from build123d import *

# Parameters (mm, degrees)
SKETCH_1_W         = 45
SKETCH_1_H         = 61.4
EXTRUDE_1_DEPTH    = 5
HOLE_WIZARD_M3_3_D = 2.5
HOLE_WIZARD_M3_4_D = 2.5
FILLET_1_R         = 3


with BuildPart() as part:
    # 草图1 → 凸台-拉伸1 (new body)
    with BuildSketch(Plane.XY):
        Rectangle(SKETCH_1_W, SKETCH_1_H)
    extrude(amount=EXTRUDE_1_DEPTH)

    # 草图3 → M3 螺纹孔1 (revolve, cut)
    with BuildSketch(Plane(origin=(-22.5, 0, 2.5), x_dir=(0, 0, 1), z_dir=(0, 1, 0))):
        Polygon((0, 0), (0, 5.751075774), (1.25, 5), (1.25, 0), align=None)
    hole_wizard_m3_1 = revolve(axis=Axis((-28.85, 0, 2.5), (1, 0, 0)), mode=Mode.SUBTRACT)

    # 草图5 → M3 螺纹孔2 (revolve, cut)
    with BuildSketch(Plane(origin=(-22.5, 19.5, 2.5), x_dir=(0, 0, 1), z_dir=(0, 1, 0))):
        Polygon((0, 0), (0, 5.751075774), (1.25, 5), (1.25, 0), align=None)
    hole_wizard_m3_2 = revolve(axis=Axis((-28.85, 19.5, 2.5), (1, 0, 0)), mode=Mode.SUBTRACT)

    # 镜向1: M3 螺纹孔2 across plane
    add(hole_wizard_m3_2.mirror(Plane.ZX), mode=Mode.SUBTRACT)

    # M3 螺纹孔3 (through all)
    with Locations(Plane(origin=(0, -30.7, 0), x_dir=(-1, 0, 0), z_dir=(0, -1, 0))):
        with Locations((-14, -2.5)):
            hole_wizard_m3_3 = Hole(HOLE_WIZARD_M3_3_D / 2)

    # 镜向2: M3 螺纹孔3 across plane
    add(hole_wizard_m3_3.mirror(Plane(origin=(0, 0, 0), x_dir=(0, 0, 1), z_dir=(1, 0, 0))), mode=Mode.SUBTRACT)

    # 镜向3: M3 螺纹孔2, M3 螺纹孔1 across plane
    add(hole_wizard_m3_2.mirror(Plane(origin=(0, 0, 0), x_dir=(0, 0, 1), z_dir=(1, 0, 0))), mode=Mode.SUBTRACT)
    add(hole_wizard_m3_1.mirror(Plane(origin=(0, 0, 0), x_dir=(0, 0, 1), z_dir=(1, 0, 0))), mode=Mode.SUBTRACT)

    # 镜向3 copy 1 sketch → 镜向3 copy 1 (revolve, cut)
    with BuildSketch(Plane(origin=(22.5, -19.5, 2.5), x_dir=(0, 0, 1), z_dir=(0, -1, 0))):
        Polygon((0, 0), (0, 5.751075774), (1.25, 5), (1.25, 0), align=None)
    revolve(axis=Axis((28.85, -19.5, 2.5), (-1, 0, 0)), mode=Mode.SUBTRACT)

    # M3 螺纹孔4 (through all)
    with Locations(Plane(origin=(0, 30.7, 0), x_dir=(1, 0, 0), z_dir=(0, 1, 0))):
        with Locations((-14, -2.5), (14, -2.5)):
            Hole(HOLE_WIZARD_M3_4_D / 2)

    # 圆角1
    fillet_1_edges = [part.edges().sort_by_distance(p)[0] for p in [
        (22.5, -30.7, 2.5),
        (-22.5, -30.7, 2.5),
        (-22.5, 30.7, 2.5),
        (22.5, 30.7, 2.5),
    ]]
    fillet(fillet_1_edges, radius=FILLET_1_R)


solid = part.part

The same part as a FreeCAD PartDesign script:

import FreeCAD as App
import Part
import Sketcher

V = App.Vector
Q = App.Units.Quantity


def edges_at(feature, points):
    """Names of the edges that pass closest to the given points."""
    edges = feature.Shape.Edges
    near = lambda p: min(range(len(edges)), key=lambda i: edges[i].distToShape(Part.Vertex(*p))[0])
    return sorted({f"Edge{near(p) + 1}" for p in points})


def add_polygon(sketch, points):
    """Adds a closed chain of lines whose ends are joined by coincident constraints."""
    first, n = sketch.GeometryCount, len(points)
    for a, b in zip(points, points[1:] + points[:1]):
        sketch.addGeometry(Part.LineSegment(App.Vector(*a, 0), App.Vector(*b, 0)), False)
    for i in range(n):
        sketch.addConstraint(Sketcher.Constraint("Coincident", first + i, 2, first + (i + 1) % n, 1))

doc = App.newDocument("Part")
params = doc.addObject("Spreadsheet::Sheet", "Params")
for row, (alias, value) in enumerate([
    ("sketch1_width", "45 mm"),
    ("sketch1_height", "61.4 mm"),
    ("pad1_length", "5 mm"),
    ("sketch2_width", "5 mm"),
    ("sketch2_height", "1.25 mm"),
    ("groove_angle", "360 deg"),
    ("sketch3_width", "5 mm"),
    ("sketch3_height", "1.25 mm"),
    ("groove2_angle", "360 deg"),
    ("sketch4_diameter", "2.5 mm"),
    ("hole_diameter", "2.5 mm"),
    ("sketch5_width", "5 mm"),
    ("sketch5_height", "1.25 mm"),
    ("groove3_angle", "360 deg"),
    ("sketch6_diameter", "2.5 mm"),
    ("hole2_diameter", "2.5 mm"),
    ("fillet_radius", "3 mm"),
], start=1):
    params.set(f"A{row}", alias)
    params.set(f"B{row}", "=" + value)
    params.setAlias(f"B{row}", alias)

body = doc.addObject("PartDesign::Body", "Body")

# Sketch on XY plane
sketch1 = body.newObject("Sketcher::SketchObject", "Sketch")
sketch1.AttachmentSupport = (doc.getObject("XY_Plane"), [""])
sketch1.MapMode = "FlatFace"
add_polygon(sketch1, [(-22, 31), (-22, -31), (22, -31), (22, 31)])  # lines 0-3
sketch1.addConstraint(Sketcher.Constraint("Vertical", 0))
sketch1.addConstraint(Sketcher.Constraint("Horizontal", 1))
sketch1.addConstraint(Sketcher.Constraint("Vertical", 2))
sketch1.addConstraint(Sketcher.Constraint("Horizontal", 3))
sketch1.addConstraint(Sketcher.Constraint("Symmetric", 0, 2, 2, 2, -1, 1))
sketch1.addConstraint(Sketcher.Constraint("DistanceX", 1, 1, 1, 2, Q("45 mm")))
sketch1.addConstraint(Sketcher.Constraint("DistanceY", 0, 2, 0, 1, Q("61.4 mm")))
sketch1.setExpression("Constraints[9]", "Params.sketch1_width")
sketch1.setExpression("Constraints[10]", "Params.sketch1_height")
pad1 = body.newObject("PartDesign::Pad", "Pad")
pad1.Profile = sketch1
pad1.setExpression("Length", "Params.pad1_length")

# Sketch on XZ plane
sketch2 = body.newObject("Sketcher::SketchObject", "Sketch001")
sketch2.AttachmentSupport = (doc.getObject("XZ_Plane"), [""])
sketch2.MapMode = "FlatFace"
add_polygon(sketch2, [(-16.7, 2.5), (-22.5, 2.5), (-22.5, 3.8), (-17.5, 3.8)])  # lines 0-3
sketch2.addGeometry(Part.LineSegment(V(-22.5, 2.5, 0), V(-16.7, 2.5, 0)), True)  # axis
sketch2.addConstraint(Sketcher.Constraint("Horizontal", 0))
sketch2.addConstraint(Sketcher.Constraint("Vertical", 1))
sketch2.addConstraint(Sketcher.Constraint("Horizontal", 2))
sketch2.addConstraint(Sketcher.Constraint("Horizontal", 4))
sketch2.addConstraint(Sketcher.Constraint("Coincident", 4, 1, 0, 2))
sketch2.addConstraint(Sketcher.Constraint("Equal", 0, 4))
sketch2.addConstraint(Sketcher.Constraint("DistanceX", 2, 1, 2, 2, Q("5 mm")))
sketch2.addConstraint(Sketcher.Constraint("Angle", 3, Q("-59 deg")))
sketch2.addConstraint(Sketcher.Constraint("DistanceY", 1, 1, 1, 2, Q("1.25 mm")))
sketch2.addConstraint(Sketcher.Constraint("DistanceX", 0, 2, -1, 1, Q("22.5 mm")))
sketch2.addConstraint(Sketcher.Constraint("DistanceY", -1, 1, 0, 2, Q("2.5 mm")))
sketch2.setExpression("Constraints[10]", "Params.sketch2_width")
sketch2.setExpression("Constraints[12]", "Params.sketch2_height")
groove = body.newObject("PartDesign::Groove", "Groove")
groove.Profile = sketch2
groove.ReferenceAxis = (sketch2, ["Axis0"])
groove.setExpression("Angle", "Params.groove_angle")

# Sketch on XZ plane
sketch3 = body.newObject("Sketcher::SketchObject", "Sketch002")
sketch3.AttachmentSupport = (doc.getObject("XZ_Plane"), [""])
sketch3.MapMode = "FlatFace"
sketch3.AttachmentOffset = App.Placement(V(0, 0, -19.5), App.Rotation())
add_polygon(sketch3, [(-16.7, 2.5), (-22.5, 2.5), (-22.5, 3.8), (-17.5, 3.8)])  # lines 0-3
sketch3.addGeometry(Part.LineSegment(V(-22.5, 2.5, 0), V(-16.7, 2.5, 0)), True)  # axis
sketch3.addConstraint(Sketcher.Constraint("Horizontal", 0))
sketch3.addConstraint(Sketcher.Constraint("Vertical", 1))
sketch3.addConstraint(Sketcher.Constraint("Horizontal", 2))
sketch3.addConstraint(Sketcher.Constraint("Horizontal", 4))
sketch3.addConstraint(Sketcher.Constraint("Coincident", 4, 1, 0, 2))
sketch3.addConstraint(Sketcher.Constraint("Equal", 0, 4))
sketch3.addConstraint(Sketcher.Constraint("DistanceX", 2, 1, 2, 2, Q("5 mm")))
sketch3.addConstraint(Sketcher.Constraint("Angle", 3, Q("-59 deg")))
sketch3.addConstraint(Sketcher.Constraint("DistanceY", 1, 1, 1, 2, Q("1.25 mm")))
sketch3.addConstraint(Sketcher.Constraint("DistanceX", 0, 2, -1, 1, Q("22.5 mm")))
sketch3.addConstraint(Sketcher.Constraint("DistanceY", -1, 1, 0, 2, Q("2.5 mm")))
sketch3.setExpression("Constraints[10]", "Params.sketch3_width")
sketch3.setExpression("Constraints[12]", "Params.sketch3_height")
groove2 = body.newObject("PartDesign::Groove", "Groove001")
groove2.Profile = sketch3
groove2.ReferenceAxis = (sketch3, ["Axis0"])
groove2.setExpression("Angle", "Params.groove2_angle")
doc.recompute()

mirrored = body.newObject("PartDesign::Mirrored", "Mirrored")
mirrored.Originals = [groove2]
mirrored.MirrorPlane = (doc.getObject("XZ_Plane"), [""])
body.Tip = mirrored

# Sketch on XZ plane
sketch4 = body.newObject("Sketcher::SketchObject", "Sketch003")
sketch4.AttachmentSupport = (doc.getObject("XZ_Plane"), [""])
sketch4.MapMode = "FlatFace"
sketch4.AttachmentOffset = App.Placement(V(0, 0, 30.7), App.Rotation())
sketch4.addGeometry(Part.Circle(V(14, 2.5, 0), V(0, 0, 1), 1.2), False)
sketch4.addConstraint(Sketcher.Constraint("Diameter", 0, Q("2.5 mm")))
sketch4.addConstraint(Sketcher.Constraint("DistanceX", -1, 1, 0, 3, Q("14 mm")))
sketch4.addConstraint(Sketcher.Constraint("DistanceY", -1, 1, 0, 3, Q("2.5 mm")))
sketch4.setExpression("Constraints[0]", "Params.sketch4_diameter")
doc.recompute()
hole = body.newObject("PartDesign::Hole", "Hole")
hole.Profile = sketch4
hole.ThreadType = "None"
hole.setExpression("Diameter", "Params.hole_diameter")
hole.DepthType = "ThroughAll"
doc.recompute()

mirrored2 = body.newObject("PartDesign::Mirrored", "Mirrored001")
mirrored2.Originals = [hole]
mirrored2.MirrorPlane = (doc.getObject("YZ_Plane"), [""])
body.Tip = mirrored2
doc.recompute()

mirrored3 = body.newObject("PartDesign::Mirrored", "Mirrored002")
mirrored3.Originals = [groove2, groove]
mirrored3.MirrorPlane = (doc.getObject("YZ_Plane"), [""])
body.Tip = mirrored3

# Sketch on XZ plane
sketch5 = body.newObject("Sketcher::SketchObject", "Sketch004")
sketch5.AttachmentSupport = (doc.getObject("XZ_Plane"), [""])
sketch5.MapMode = "FlatFace"
sketch5.AttachmentOffset = App.Placement(V(0, 0, 19.5), App.Rotation())
add_polygon(sketch5, [(16.7, 2.5), (22.5, 2.5), (22.5, 3.8), (17.5, 3.8)])  # lines 0-3
sketch5.addGeometry(Part.LineSegment(V(22.5, 2.5, 0), V(16.7, 2.5, 0)), True)  # axis
sketch5.addConstraint(Sketcher.Constraint("Horizontal", 0))
sketch5.addConstraint(Sketcher.Constraint("Vertical", 1))
sketch5.addConstraint(Sketcher.Constraint("Horizontal", 2))
sketch5.addConstraint(Sketcher.Constraint("Horizontal", 4))
sketch5.addConstraint(Sketcher.Constraint("Coincident", 4, 1, 0, 2))
sketch5.addConstraint(Sketcher.Constraint("Equal", 0, 4))
sketch5.addConstraint(Sketcher.Constraint("DistanceX", 2, 2, 2, 1, Q("5 mm")))
sketch5.addConstraint(Sketcher.Constraint("Angle", 3, Q("-121 deg")))
sketch5.addConstraint(Sketcher.Constraint("DistanceY", 1, 1, 1, 2, Q("1.25 mm")))
sketch5.addConstraint(Sketcher.Constraint("DistanceX", -1, 1, 0, 2, Q("22.5 mm")))
sketch5.addConstraint(Sketcher.Constraint("DistanceY", -1, 1, 0, 2, Q("2.5 mm")))
sketch5.setExpression("Constraints[10]", "Params.sketch5_width")
sketch5.setExpression("Constraints[12]", "Params.sketch5_height")
groove3 = body.newObject("PartDesign::Groove", "Groove002")
groove3.Profile = sketch5
groove3.ReferenceAxis = (sketch5, ["Axis0"])
groove3.setExpression("Angle", "Params.groove3_angle")

# Sketch on XZ plane
sketch6 = body.newObject("Sketcher::SketchObject", "Sketch005")
sketch6.AttachmentSupport = (doc.getObject("XZ_Plane"), [""])
sketch6.MapMode = "FlatFace"
sketch6.AttachmentOffset = App.Placement(V(0, 0, -30.7), App.Rotation())
sketch6.addGeometry(Part.Circle(V(-14, 2.5, 0), V(0, 0, 1), 1.2), False)
sketch6.addGeometry(Part.Circle(V(14, 2.5, 0), V(0, 0, 1), 1.2), False)
sketch6.addConstraint(Sketcher.Constraint("Equal", 0, 1))
sketch6.addConstraint(Sketcher.Constraint("Symmetric", 0, 3, 1, 3, -2))
sketch6.addConstraint(Sketcher.Constraint("Diameter", 0, Q("2.5 mm")))
sketch6.addConstraint(Sketcher.Constraint("DistanceX", 0, 3, -1, 1, Q("14 mm")))
sketch6.addConstraint(Sketcher.Constraint("DistanceY", -1, 1, 0, 3, Q("2.5 mm")))
sketch6.setExpression("Constraints[2]", "Params.sketch6_diameter")
doc.recompute()
hole2 = body.newObject("PartDesign::Hole", "Hole001")
hole2.Profile = sketch6
hole2.ThreadType = "None"
hole2.setExpression("Diameter", "Params.hole2_diameter")
hole2.DepthType = "ThroughAll"
hole2.Reversed = True
doc.recompute()

fillet = body.newObject("PartDesign::Fillet", "Fillet")
fillet.Base = (hole2, edges_at(hole2, [
    (22.5, -30.7, 2.5),
    (-22.5, -30.7, 2.5),
    (-22.5, 30.7, 2.5),
    (22.5, 30.7, 2.5),
]))
fillet.setExpression("Radius", "Params.fillet_radius")

doc.recompute()
